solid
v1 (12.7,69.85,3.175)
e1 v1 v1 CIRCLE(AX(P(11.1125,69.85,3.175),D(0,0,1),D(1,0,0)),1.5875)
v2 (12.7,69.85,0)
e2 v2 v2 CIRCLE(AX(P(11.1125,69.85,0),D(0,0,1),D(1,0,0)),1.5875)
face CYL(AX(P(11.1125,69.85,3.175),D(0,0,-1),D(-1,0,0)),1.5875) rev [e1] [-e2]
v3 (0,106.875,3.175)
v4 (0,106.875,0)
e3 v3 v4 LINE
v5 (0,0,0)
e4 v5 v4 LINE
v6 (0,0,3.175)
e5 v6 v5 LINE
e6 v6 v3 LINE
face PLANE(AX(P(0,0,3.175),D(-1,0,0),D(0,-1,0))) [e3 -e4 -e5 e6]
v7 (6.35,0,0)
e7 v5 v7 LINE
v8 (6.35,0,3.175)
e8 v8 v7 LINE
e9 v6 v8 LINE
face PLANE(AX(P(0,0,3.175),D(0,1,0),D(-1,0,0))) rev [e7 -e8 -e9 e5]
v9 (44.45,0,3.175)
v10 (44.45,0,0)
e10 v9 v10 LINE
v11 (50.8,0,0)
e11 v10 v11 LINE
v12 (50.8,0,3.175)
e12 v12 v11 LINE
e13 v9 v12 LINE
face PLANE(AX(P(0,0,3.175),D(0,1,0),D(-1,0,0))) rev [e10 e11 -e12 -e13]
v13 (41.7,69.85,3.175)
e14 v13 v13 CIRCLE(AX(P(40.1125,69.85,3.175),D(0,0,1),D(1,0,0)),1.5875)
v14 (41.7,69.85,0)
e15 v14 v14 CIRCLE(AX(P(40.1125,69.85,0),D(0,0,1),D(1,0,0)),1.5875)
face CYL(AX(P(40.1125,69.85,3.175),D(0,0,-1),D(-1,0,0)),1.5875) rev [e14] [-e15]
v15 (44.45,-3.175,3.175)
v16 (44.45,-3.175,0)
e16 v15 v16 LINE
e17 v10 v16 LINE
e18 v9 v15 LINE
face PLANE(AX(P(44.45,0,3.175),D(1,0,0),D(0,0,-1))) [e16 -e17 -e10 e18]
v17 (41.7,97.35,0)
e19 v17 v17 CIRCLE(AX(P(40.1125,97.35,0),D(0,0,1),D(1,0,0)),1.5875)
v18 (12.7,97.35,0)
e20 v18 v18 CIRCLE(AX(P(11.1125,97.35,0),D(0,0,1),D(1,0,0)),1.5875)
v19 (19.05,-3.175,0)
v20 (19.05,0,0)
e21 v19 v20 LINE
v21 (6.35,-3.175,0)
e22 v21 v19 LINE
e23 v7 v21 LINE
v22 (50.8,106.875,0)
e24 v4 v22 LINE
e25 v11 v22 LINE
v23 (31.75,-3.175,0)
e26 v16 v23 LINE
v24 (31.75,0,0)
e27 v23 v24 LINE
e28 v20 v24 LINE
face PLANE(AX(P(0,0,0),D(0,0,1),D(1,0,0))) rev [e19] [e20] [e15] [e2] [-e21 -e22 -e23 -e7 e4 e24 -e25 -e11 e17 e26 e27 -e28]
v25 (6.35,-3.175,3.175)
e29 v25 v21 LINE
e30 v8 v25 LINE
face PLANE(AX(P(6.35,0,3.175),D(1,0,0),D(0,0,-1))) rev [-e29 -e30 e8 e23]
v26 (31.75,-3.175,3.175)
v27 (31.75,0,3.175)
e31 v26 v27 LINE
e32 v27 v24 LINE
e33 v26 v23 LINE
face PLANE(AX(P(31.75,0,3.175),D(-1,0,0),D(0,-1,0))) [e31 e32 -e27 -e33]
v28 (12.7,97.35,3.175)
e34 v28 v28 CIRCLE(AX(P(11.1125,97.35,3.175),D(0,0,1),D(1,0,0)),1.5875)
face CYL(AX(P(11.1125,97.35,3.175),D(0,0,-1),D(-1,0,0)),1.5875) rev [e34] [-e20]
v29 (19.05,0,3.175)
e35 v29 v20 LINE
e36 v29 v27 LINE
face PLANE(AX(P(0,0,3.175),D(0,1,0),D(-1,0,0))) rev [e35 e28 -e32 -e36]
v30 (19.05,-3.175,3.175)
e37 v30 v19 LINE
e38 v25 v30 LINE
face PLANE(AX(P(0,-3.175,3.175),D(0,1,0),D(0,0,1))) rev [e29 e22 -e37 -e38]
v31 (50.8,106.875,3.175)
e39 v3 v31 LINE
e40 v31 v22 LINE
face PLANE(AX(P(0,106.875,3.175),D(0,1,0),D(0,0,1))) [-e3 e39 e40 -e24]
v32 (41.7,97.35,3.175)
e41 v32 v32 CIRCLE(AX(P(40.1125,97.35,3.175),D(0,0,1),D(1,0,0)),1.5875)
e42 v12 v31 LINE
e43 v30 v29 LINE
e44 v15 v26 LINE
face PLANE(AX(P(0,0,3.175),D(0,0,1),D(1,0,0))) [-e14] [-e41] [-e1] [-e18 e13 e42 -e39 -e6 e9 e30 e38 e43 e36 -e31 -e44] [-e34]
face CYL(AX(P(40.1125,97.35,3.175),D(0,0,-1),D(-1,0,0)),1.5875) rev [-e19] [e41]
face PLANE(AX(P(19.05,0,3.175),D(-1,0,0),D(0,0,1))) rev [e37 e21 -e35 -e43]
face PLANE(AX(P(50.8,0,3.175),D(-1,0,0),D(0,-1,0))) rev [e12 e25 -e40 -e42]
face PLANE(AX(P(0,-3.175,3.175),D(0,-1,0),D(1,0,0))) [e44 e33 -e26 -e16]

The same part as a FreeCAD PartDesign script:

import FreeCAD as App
import Part
import Sketcher
Q = App.Units.Quantity

doc = App.newDocument("Part")
body = doc.addObject("PartDesign::Body", "Body")

sketch1 = doc.addObject("Sketcher::SketchObject", "Sketch")
body.addObject(sketch1)
sketch1.AttachmentSupport = (doc.XY_Plane, [""])
sketch1.MapMode = "FlatFace"
sketch1.addGeometry(Part.LineSegment(App.Vector(0, 0, 0), App.Vector(6.3, 0, 0)), False)
sketch1.addGeometry(Part.LineSegment(App.Vector(6.3, 0, 0), App.Vector(6.3, -3.2, 0)), False)
sketch1.addGeometry(Part.LineSegment(App.Vector(6.3, -3.2, 0), App.Vector(19.1, -3.2, 0)), False)
sketch1.addGeometry(Part.LineSegment(App.Vector(19.1, -3.2, 0), App.Vector(19.1, 0, 0)), False)
sketch1.addGeometry(Part.LineSegment(App.Vector(19.1, 0, 0), App.Vector(31.8, 0, 0)), False)
sketch1.addGeometry(Part.LineSegment(App.Vector(31.8, 0, 0), App.Vector(31.8, -3.2, 0)), False)
sketch1.addGeometry(Part.LineSegment(App.Vector(31.8, -3.2, 0), App.Vector(44.5, -3.2, 0)), False)
sketch1.addGeometry(Part.LineSegment(App.Vector(44.5, -3.2, 0), App.Vector(44.5, 0, 0)), False)
sketch1.addGeometry(Part.LineSegment(App.Vector(44.5, 0, 0), App.Vector(50.8, 0, 0)), False)
sketch1.addGeometry(Part.LineSegment(App.Vector(50.8, 0, 0), App.Vector(50.8, 106.9, 0)), False)
sketch1.addGeometry(Part.LineSegment(App.Vector(50.8, 106.9, 0), App.Vector(0, 106.9, 0)), False)
sketch1.addGeometry(Part.LineSegment(App.Vector(0, 106.9, 0), App.Vector(0, 0, 0)), False)
sketch1.addGeometry(Part.Circle(App.Vector(11.1, 69.8, 0), App.Vector(0, 0, 1), 1.6), False)
sketch1.addGeometry(Part.Circle(App.Vector(40.1, 69.8, 0), App.Vector(0, 0, 1), 1.6), False)
sketch1.addGeometry(Part.Circle(App.Vector(11.1, 97.3, 0), App.Vector(0, 0, 1), 1.6), False)
sketch1.addGeometry(Part.Circle(App.Vector(40.1, 97.3, 0), App.Vector(0, 0, 1), 1.6), False)
sketch1.addConstraint(Sketcher.Constraint("Coincident", 0, 2, 1, 1))
sketch1.addConstraint(Sketcher.Constraint("Coincident", 1, 2, 2, 1))
sketch1.addConstraint(Sketcher.Constraint("Coincident", 2, 2, 3, 1))
sketch1.addConstraint(Sketcher.Constraint("Coincident", 3, 2, 4, 1))
sketch1.addConstraint(Sketcher.Constraint("Coincident", 4, 2, 5, 1))
sketch1.addConstraint(Sketcher.Constraint("Coincident", 5, 2, 6, 1))
sketch1.addConstraint(Sketcher.Constraint("Coincident", 6, 2, 7, 1))
sketch1.addConstraint(Sketcher.Constraint("Coincident", 7, 2, 8, 1))
sketch1.addConstraint(Sketcher.Constraint("Coincident", 8, 2, 9, 1))
sketch1.addConstraint(Sketcher.Constraint("Coincident", 9, 2, 10, 1))
sketch1.addConstraint(Sketcher.Constraint("Coincident", 10, 2, 11, 1))
sketch1.addConstraint(Sketcher.Constraint("Coincident", 11, 2, 0, 1))
sketch1.addConstraint(Sketcher.Constraint("Horizontal", 0))
sketch1.addConstraint(Sketcher.Constraint("Vertical", 1))
sketch1.addConstraint(Sketcher.Constraint("Horizontal", 2))
sketch1.addConstraint(Sketcher.Constraint("Vertical", 3))
sketch1.addConstraint(Sketcher.Constraint("Horizontal", 4))
sketch1.addConstraint(Sketcher.Constraint("Vertical", 5))
sketch1.addConstraint(Sketcher.Constraint("Horizontal", 6))
sketch1.addConstraint(Sketcher.Constraint("Vertical", 7))
sketch1.addConstraint(Sketcher.Constraint("Horizontal", 8))
sketch1.addConstraint(Sketcher.Constraint("Vertical", 9))
sketch1.addConstraint(Sketcher.Constraint("Horizontal", 10))
sketch1.addConstraint(Sketcher.Constraint("Vertical", 11))
sketch1.addConstraint(Sketcher.Constraint("Coincident", 11, 2, -1, 1))
sketch1.addConstraint(Sketcher.Constraint("Equal", 12, 13))
sketch1.addConstraint(Sketcher.Constraint("Equal", 13, 14))
sketch1.addConstraint(Sketcher.Constraint("Equal", 14, 15))
sketch1.addConstraint(Sketcher.Constraint("PointOnObject", 3, 2, -1))
sketch1.addConstraint(Sketcher.Constraint("PointOnObject", 7, 2, -1))
sketch1.addConstraint(Sketcher.Constraint("Horizontal", 12, 3, 13, 3))
sketch1.addConstraint(Sketcher.Constraint("Horizontal", 14, 3, 15, 3))
sketch1.addConstraint(Sketcher.Constraint("Horizontal", 2, 2, 5, 2))
sketch1.addConstraint(Sketcher.Constraint("Vertical", 12, 3, 14, 3))
sketch1.addConstraint(Sketcher.Constraint("Vertical", 13, 3, 15, 3))
sketch1.addConstraint(Sketcher.Constraint("Equal", 2, 4))
sketch1.addConstraint(Sketcher.Constraint("Equal", 4, 6))
sketch1.addConstraint(Sketcher.Constraint("Equal", 0, 8))
sketch1.addConstraint(Sketcher.Constraint("DistanceX", 10, 2, 10, 1, Q("2 in")))
sketch1.addConstraint(Sketcher.Constraint("Diameter", 12, Q("0.125 in")))
sketch1.addConstraint(Sketcher.Constraint("DistanceX", 2, 1, 2, 2, Q("0.5 in")))
sketch1.addConstraint(Sketcher.Constraint("DistanceY", 1, 2, 1, 1, Q("0.125 in")))
sketch1.addConstraint(Sketcher.Constraint("DistanceY", -1, 1, 12, 3, Q("2.75 in")))
sketch1.addConstraint(Sketcher.Constraint("DistanceX", -1, 1, 12, 3, Q("0.4375 in")))
sketch1.addConstraint(Sketcher.Constraint("DistanceY", 15, 3, 9, 2, Q("0.375 in")))
sketch1.addConstraint(Sketcher.Constraint("DistanceY", 9, 1, 9, 2, 106.875))
sketch1.addConstraint(Sketcher.Constraint("DistanceX", -1, 1, 13, 3, 40.1125))
pad1 = doc.addObject("PartDesign::Pad", "Pad")
body.addObject(pad1)
pad1.Profile = sketch1
pad1.Length = Q("0.125 in")

doc.recompute()
